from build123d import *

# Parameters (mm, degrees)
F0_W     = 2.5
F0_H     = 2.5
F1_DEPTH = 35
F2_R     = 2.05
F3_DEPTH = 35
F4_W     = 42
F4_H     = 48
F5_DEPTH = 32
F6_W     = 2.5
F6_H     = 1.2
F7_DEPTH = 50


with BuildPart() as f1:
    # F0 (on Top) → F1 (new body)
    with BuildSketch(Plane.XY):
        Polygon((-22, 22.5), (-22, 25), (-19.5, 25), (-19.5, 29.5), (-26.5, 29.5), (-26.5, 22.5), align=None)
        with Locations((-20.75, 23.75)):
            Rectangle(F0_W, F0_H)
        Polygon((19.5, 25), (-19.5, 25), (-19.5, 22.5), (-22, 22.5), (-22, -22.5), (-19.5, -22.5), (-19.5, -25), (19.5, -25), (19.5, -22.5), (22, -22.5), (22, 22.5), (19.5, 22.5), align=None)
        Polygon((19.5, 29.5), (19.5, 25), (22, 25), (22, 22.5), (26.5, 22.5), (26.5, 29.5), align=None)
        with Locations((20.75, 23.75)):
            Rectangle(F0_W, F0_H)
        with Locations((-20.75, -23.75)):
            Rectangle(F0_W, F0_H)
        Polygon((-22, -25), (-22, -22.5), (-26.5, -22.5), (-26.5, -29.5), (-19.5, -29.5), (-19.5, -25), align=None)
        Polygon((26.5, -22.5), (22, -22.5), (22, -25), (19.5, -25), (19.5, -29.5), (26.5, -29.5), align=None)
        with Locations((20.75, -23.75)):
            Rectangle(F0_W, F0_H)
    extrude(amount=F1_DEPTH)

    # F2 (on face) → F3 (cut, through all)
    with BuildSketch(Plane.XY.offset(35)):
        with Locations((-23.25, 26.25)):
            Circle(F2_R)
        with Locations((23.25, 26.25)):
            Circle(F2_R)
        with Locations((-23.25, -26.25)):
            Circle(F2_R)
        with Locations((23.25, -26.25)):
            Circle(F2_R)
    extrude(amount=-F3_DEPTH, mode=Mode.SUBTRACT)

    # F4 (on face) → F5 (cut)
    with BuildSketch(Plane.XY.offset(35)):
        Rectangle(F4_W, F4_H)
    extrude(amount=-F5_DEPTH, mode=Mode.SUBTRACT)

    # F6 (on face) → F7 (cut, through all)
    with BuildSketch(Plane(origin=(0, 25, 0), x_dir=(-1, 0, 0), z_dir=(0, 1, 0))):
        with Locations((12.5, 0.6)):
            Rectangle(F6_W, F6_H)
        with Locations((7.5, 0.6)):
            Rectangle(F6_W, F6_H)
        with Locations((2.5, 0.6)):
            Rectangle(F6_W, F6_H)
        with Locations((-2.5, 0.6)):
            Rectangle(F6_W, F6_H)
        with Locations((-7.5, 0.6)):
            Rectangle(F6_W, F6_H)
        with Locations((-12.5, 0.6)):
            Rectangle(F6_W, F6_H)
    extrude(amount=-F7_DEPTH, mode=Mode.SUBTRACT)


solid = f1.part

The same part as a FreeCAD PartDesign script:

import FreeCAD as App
import Part
import Sketcher

doc = App.newDocument("Part")
body = doc.addObject("PartDesign::Body", "Body")

# Sketch on XY plane
sketch1 = body.newObject("Sketcher::SketchObject", "Sketch")
sketch1.AttachmentSupport = (doc.getObject("XY_Plane"), [""])
sketch1.MapMode = "FlatFace"
sketch1.addGeometry(Part.LineSegment(App.Vector(-19.5, 29.5, 0), App.Vector(-26.5, 29.5, 0)), False)
sketch1.addGeometry(Part.LineSegment(App.Vector(-26.5, 29.5, 0), App.Vector(-26.5, 22.5, 0)), False)
sketch1.addGeometry(Part.LineSegment(App.Vector(-26.5, 22.5, 0), App.Vector(-22, 22.5, 0)), False)
sketch1.addGeometry(Part.LineSegment(App.Vector(-22, 22.5, 0), App.Vector(-22, -22.5, 0)), False)
sketch1.addGeometry(Part.LineSegment(App.Vector(-22, -22.5, 0), App.Vector(-26.5, -22.5, 0)), False)
sketch1.addGeometry(Part.LineSegment(App.Vector(-26.5, -22.5, 0), App.Vector(-26.5, -29.5, 0)), False)
sketch1.addGeometry(Part.LineSegment(App.Vector(-26.5, -29.5, 0), App.Vector(-19.5, -29.5, 0)), False)
sketch1.addGeometry(Part.LineSegment(App.Vector(-19.5, -29.5, 0), App.Vector(-19.5, -25, 0)), False)
sketch1.addGeometry(Part.LineSegment(App.Vector(-19.5, -25, 0), App.Vector(19.5, -25, 0)), False)
sketch1.addGeometry(Part.LineSegment(App.Vector(19.5, -25, 0), App.Vector(19.5, -29.5, 0)), False)
sketch1.addGeometry(Part.LineSegment(App.Vector(19.5, -29.5, 0), App.Vector(26.5, -29.5, 0)), False)
sketch1.addGeometry(Part.LineSegment(App.Vector(26.5, -29.5, 0), App.Vector(26.5, -22.5, 0)), False)
sketch1.addGeometry(Part.LineSegment(App.Vector(26.5, -22.5, 0), App.Vector(22, -22.5, 0)), False)
sketch1.addGeometry(Part.LineSegment(App.Vector(22, -22.5, 0), App.Vector(22, 22.5, 0)), False)
sketch1.addGeometry(Part.LineSegment(App.Vector(22, 22.5, 0), App.Vector(26.5, 22.5, 0)), False)
sketch1.addGeometry(Part.LineSegment(App.Vector(26.5, 22.5, 0), App.Vector(26.5, 29.5, 0)), False)
sketch1.addGeometry(Part.LineSegment(App.Vector(26.5, 29.5, 0), App.Vector(19.5, 29.5, 0)), False)
sketch1.addGeometry(Part.LineSegment(App.Vector(19.5, 29.5, 0), App.Vector(19.5, 25, 0)), False)
sketch1.addGeometry(Part.LineSegment(App.Vector(19.5, 25, 0), App.Vector(-19.5, 25, 0)), False)
sketch1.addGeometry(Part.LineSegment(App.Vector(-19.5, 25, 0), App.Vector(-19.5, 29.5, 0)), False)
sketch1.addConstraint(Sketcher.Constraint("Coincident", 0, 2, 1, 1))
sketch1.addConstraint(Sketcher.Constraint("Coincident", 1, 2, 2, 1))
sketch1.addConstraint(Sketcher.Constraint("Coincident", 2, 2, 3, 1))
sketch1.addConstraint(Sketcher.Constraint("Coincident", 3, 2, 4, 1))
sketch1.addConstraint(Sketcher.Constraint("Coincident", 4, 2, 5, 1))
sketch1.addConstraint(Sketcher.Constraint("Coincident", 5, 2, 6, 1))
sketch1.addConstraint(Sketcher.Constraint("Coincident", 6, 2, 7, 1))
sketch1.addConstraint(Sketcher.Constraint("Coincident", 7, 2, 8, 1))
sketch1.addConstraint(Sketcher.Constraint("Coincident", 8, 2, 9, 1))
sketch1.addConstraint(Sketcher.Constraint("Coincident", 9, 2, 10, 1))
sketch1.addConstraint(Sketcher.Constraint("Coincident", 10, 2, 11, 1))
sketch1.addConstraint(Sketcher.Constraint("Coincident", 11, 2, 12, 1))
sketch1.addConstraint(Sketcher.Constraint("Coincident", 12, 2, 13, 1))
sketch1.addConstraint(Sketcher.Constraint("Coincident", 13, 2, 14, 1))
sketch1.addConstraint(Sketcher.Constraint("Coincident", 14, 2, 15, 1))
sketch1.addConstraint(Sketcher.Constraint("Coincident", 15, 2, 16, 1))
sketch1.addConstraint(Sketcher.Constraint("Coincident", 16, 2, 17, 1))
sketch1.addConstraint(Sketcher.Constraint("Coincident", 17, 2, 18, 1))
sketch1.addConstraint(Sketcher.Constraint("Coincident", 18, 2, 19, 1))
sketch1.addConstraint(Sketcher.Constraint("Coincident", 19, 2, 0, 1))
sketch1.addConstraint(Sketcher.Constraint("Horizontal", 0))
sketch1.addConstraint(Sketcher.Constraint("Vertical", 1))
sketch1.addConstraint(Sketcher.Constraint("Horizontal", 2))
sketch1.addConstraint(Sketcher.Constraint("Vertical", 3))
sketch1.addConstraint(Sketcher.Constraint("Horizontal", 4))
sketch1.addConstraint(Sketcher.Constraint("Vertical", 5))
sketch1.addConstraint(Sketcher.Constraint("Horizontal", 6))
sketch1.addConstraint(Sketcher.Constraint("Vertical", 7))
sketch1.addConstraint(Sketcher.Constraint("Horizontal", 8))
sketch1.addConstraint(Sketcher.Constraint("Vertical", 9))
sketch1.addConstraint(Sketcher.Constraint("Horizontal", 10))
sketch1.addConstraint(Sketcher.Constraint("Vertical", 11))
sketch1.addConstraint(Sketcher.Constraint("Horizontal", 12))
sketch1.addConstraint(Sketcher.Constraint("Vertical", 13))
sketch1.addConstraint(Sketcher.Constraint("Horizontal", 14))
sketch1.addConstraint(Sketcher.Constraint("Vertical", 15))
sketch1.addConstraint(Sketcher.Constraint("Horizontal", 16))
sketch1.addConstraint(Sketcher.Constraint("Vertical", 17))
sketch1.addConstraint(Sketcher.Constraint("Horizontal", 18))
sketch1.addConstraint(Sketcher.Constraint("Vertical", 19))
sketch1.addConstraint(Sketcher.Constraint("Symmetric", 0, 2, 10, 2, -1, 1))
sketch1.addConstraint(Sketcher.Constraint("Symmetric", 2, 2, 12, 2, -1, 1))
sketch1.addConstraint(Sketcher.Constraint("Symmetric", 4, 2, 14, 2, -1, 1))
sketch1.addConstraint(Sketcher.Constraint("Symmetric", 6, 2, 16, 2, -1, 1))
sketch1.addConstraint(Sketcher.Constraint("Symmetric", 8, 2, 18, 2, -1, 1))
sketch1.addConstraint(Sketcher.Constraint("Symmetric", 6, 2, 9, 2, -2))
sketch1.addConstraint(Sketcher.Constraint("Symmetric", 4, 2, 11, 2, -2))
sketch1.addConstraint(Sketcher.Constraint("Equal", 16, 1))
sketch1.addConstraint(Sketcher.Constraint("Equal", 14, 7))
sketch1.addConstraint(Sketcher.Constraint("DistanceX", 0, 2, 0, 1, 7.0))
sketch1.addConstraint(Sketcher.Constraint("DistanceX", 8, 1, 8, 2, 39.0))
sketch1.addConstraint(Sketcher.Constraint("DistanceY", 3, 2, 3, 1, 45.0))
sketch1.addConstraint(Sketcher.Constraint("DistanceX", 2, 1, 2, 2, 4.5))
pad1 = body.newObject("PartDesign::Pad", "Pad")
pad1.Profile = sketch1
pad1.Length = 35

# Sketch on XY plane
sketch2 = body.newObject("Sketcher::SketchObject", "Sketch001")
sketch2.AttachmentSupport = (doc.getObject("XY_Plane"), [""])
sketch2.MapMode = "FlatFace"
sketch2.AttachmentOffset = App.Placement(App.Vector(0, 0, 35), App.Rotation())
sketch2.addGeometry(Part.Circle(App.Vector(-23.25, 26.25, 0), App.Vector(0, 0, 1), 2.05), False)
sketch2.addGeometry(Part.Circle(App.Vector(23.25, 26.25, 0), App.Vector(0, 0, 1), 2.05), False)
sketch2.addGeometry(Part.Circle(App.Vector(-23.25, -26.25, 0), App.Vector(0, 0, 1), 2.05), False)
sketch2.addGeometry(Part.Circle(App.Vector(23.25, -26.25, 0), App.Vector(0, 0, 1), 2.05), False)
sketch2.addConstraint(Sketcher.Constraint("Equal", 0, 1))
sketch2.addConstraint(Sketcher.Constraint("Equal", 1, 2))
sketch2.addConstraint(Sketcher.Constraint("Equal", 2, 3))
sketch2.addConstraint(Sketcher.Constraint("Symmetric", 1, 3, 2, 3, -1, 1))
sketch2.addConstraint(Sketcher.Constraint("Symmetric", 0, 3, 3, 3, -1, 1))
sketch2.addConstraint(Sketcher.Constraint("Symmetric", 0, 3, 1, 3, -2))
sketch2.addConstraint(Sketcher.Constraint("Diameter", 0, 4.1))
sketch2.addConstraint(Sketcher.Constraint("DistanceX", 0, 3, 1, 3, 46.5))
sketch2.addConstraint(Sketcher.Constraint("DistanceY", 2, 3, 0, 3, 52.5))
pocket1 = body.newObject("PartDesign::Pocket", "Pocket")
pocket1.Profile = sketch2
pocket1.Type = "ThroughAll"

# Sketch on XY plane
sketch3 = body.newObject("Sketcher::SketchObject", "Sketch002")
sketch3.AttachmentSupport = (doc.getObject("XY_Plane"), [""])
sketch3.MapMode = "FlatFace"
sketch3.AttachmentOffset = App.Placement(App.Vector(0, 0, 35), App.Rotation())
sketch3.addGeometry(Part.LineSegment(App.Vector(-21, 24, 0), App.Vector(-21, -24, 0)), False)
sketch3.addGeometry(Part.LineSegment(App.Vector(-21, -24, 0), App.Vector(21, -24, 0)), False)
sketch3.addGeometry(Part.LineSegment(App.Vector(21, -24, 0), App.Vector(21, 24, 0)), False)
sketch3.addGeometry(Part.LineSegment(App.Vector(21, 24, 0), App.Vector(-21, 24, 0)), False)
sketch3.addConstraint(Sketcher.Constraint("Coincident", 0, 2, 1, 1))
sketch3.addConstraint(Sketcher.Constraint("Coincident", 1, 2, 2, 1))
sketch3.addConstraint(Sketcher.Constraint("Coincident", 2, 2, 3, 1))
sketch3.addConstraint(Sketcher.Constraint("Coincident", 3, 2, 0, 1))
sketch3.addConstraint(Sketcher.Constraint("Vertical", 0))
sketch3.addConstraint(Sketcher.Constraint("Horizontal", 1))
sketch3.addConstraint(Sketcher.Constraint("Vertical", 2))
sketch3.addConstraint(Sketcher.Constraint("Horizontal", 3))
sketch3.addConstraint(Sketcher.Constraint("Symmetric", 0, 2, 2, 2, -1, 1))
sketch3.addConstraint(Sketcher.Constraint("DistanceX", 1, 1, 1, 2, 42.0))
sketch3.addConstraint(Sketcher.Constraint("DistanceY", 0, 2, 0, 1, 48.0))
pocket2 = body.newObject("PartDesign::Pocket", "Pocket001")
pocket2.Profile = sketch3
pocket2.Length = 32

# Sketch on XZ plane
sketch4 = body.newObject("Sketcher::SketchObject", "Sketch003")
sketch4.AttachmentSupport = (doc.getObject("XZ_Plane"), [""])
sketch4.MapMode = "FlatFace"
sketch4.AttachmentOffset = App.Placement(App.Vector(0, 0, -25), App.Rotation())
sketch4.addGeometry(Part.LineSegment(App.Vector(-11.25, 1.2, 0), App.Vector(-11.25, 0, 0)), False)
sketch4.addGeometry(Part.LineSegment(App.Vector(-11.25, 0, 0), App.Vector(-13.75, 0, 0)), False)
sketch4.addGeometry(Part.LineSegment(App.Vector(-13.75, 0, 0), App.Vector(-13.75, 1.2, 0)), False)
sketch4.addGeometry(Part.LineSegment(App.Vector(-13.75, 1.2, 0), App.Vector(-11.25, 1.2, 0)), False)
sketch4.addGeometry(Part.LineSegment(App.Vector(-6.25, 1.2, 0), App.Vector(-6.25, 0, 0)), False)
sketch4.addGeometry(Part.LineSegment(App.Vector(-6.25, 0, 0), App.Vector(-8.75, 0, 0)), False)
sketch4.addGeometry(Part.LineSegment(App.Vector(-8.75, 0, 0), App.Vector(-8.75, 1.2, 0)), False)
sketch4.addGeometry(Part.LineSegment(App.Vector(-8.75, 1.2, 0), App.Vector(-6.25, 1.2, 0)), False)
sketch4.addGeometry(Part.LineSegment(App.Vector(-1.25, 1.2, 0), App.Vector(-1.25, 0, 0)), False)
sketch4.addGeometry(Part.LineSegment(App.Vector(-1.25, 0, 0), App.Vector(-3.75, 0, 0)), False)
sketch4.addGeometry(Part.LineSegment(App.Vector(-3.75, 0, 0), App.Vector(-3.75, 1.2, 0)), False)
sketch4.addGeometry(Part.LineSegment(App.Vector(-3.75, 1.2, 0), App.Vector(-1.25, 1.2, 0)), False)
sketch4.addGeometry(Part.LineSegment(App.Vector(3.75, 1.2, 0), App.Vector(3.75, 0, 0)), False)
sketch4.addGeometry(Part.LineSegment(App.Vector(3.75, 0, 0), App.Vector(1.25, 0, 0)), False)
sketch4.addGeometry(Part.LineSegment(App.Vector(1.25, 0, 0), App.Vector(1.25, 1.2, 0)), False)
sketch4.addGeometry(Part.LineSegment(App.Vector(1.25, 1.2, 0), App.Vector(3.75, 1.2, 0)), False)
sketch4.addGeometry(Part.LineSegment(App.Vector(8.75, 1.2, 0), App.Vector(8.75, 0, 0)), False)
sketch4.addGeometry(Part.LineSegment(App.Vector(8.75, 0, 0), App.Vector(6.25, 0, 0)), False)
sketch4.addGeometry(Part.LineSegment(App.Vector(6.25, 0, 0), App.Vector(6.25, 1.2, 0)), False)
sketch4.addGeometry(Part.LineSegment(App.Vector(6.25, 1.2, 0), App.Vector(8.75, 1.2, 0)), False)
sketch4.addGeometry(Part.LineSegment(App.Vector(13.75, 1.2, 0), App.Vector(13.75, 0, 0)), False)
sketch4.addGeometry(Part.LineSegment(App.Vector(13.75, 0, 0), App.Vector(11.25, 0, 0)), False)
sketch4.addGeometry(Part.LineSegment(App.Vector(11.25, 0, 0), App.Vector(11.25, 1.2, 0)), False)
sketch4.addGeometry(Part.LineSegment(App.Vector(11.25, 1.2, 0), App.Vector(13.75, 1.2, 0)), False)
sketch4.addConstraint(Sketcher.Constraint("Coincident", 0, 2, 1, 1))
sketch4.addConstraint(Sketcher.Constraint("Coincident", 1, 2, 2, 1))
sketch4.addConstraint(Sketcher.Constraint("Coincident", 2, 2, 3, 1))
sketch4.addConstraint(Sketcher.Constraint("Coincident", 3, 2, 0, 1))
sketch4.addConstraint(Sketcher.Constraint("Coincident", 4, 2, 5, 1))
sketch4.addConstraint(Sketcher.Constraint("Coincident", 5, 2, 6, 1))
sketch4.addConstraint(Sketcher.Constraint("Coincident", 6, 2, 7, 1))
sketch4.addConstraint(Sketcher.Constraint("Coincident", 7, 2, 4, 1))
sketch4.addConstraint(Sketcher.Constraint("Coincident", 8, 2, 9, 1))
sketch4.addConstraint(Sketcher.Constraint("Coincident", 9, 2, 10, 1))
sketch4.addConstraint(Sketcher.Constraint("Coincident", 10, 2, 11, 1))
sketch4.addConstraint(Sketcher.Constraint("Coincident", 11, 2, 8, 1))
sketch4.addConstraint(Sketcher.Constraint("Coincident", 12, 2, 13, 1))
sketch4.addConstraint(Sketcher.Constraint("Coincident", 13, 2, 14, 1))
sketch4.addConstraint(Sketcher.Constraint("Coincident", 14, 2, 15, 1))
sketch4.addConstraint(Sketcher.Constraint("Coincident", 15, 2, 12, 1))
sketch4.addConstraint(Sketcher.Constraint("Coincident", 16, 2, 17, 1))
sketch4.addConstraint(Sketcher.Constraint("Coincident", 17, 2, 18, 1))
sketch4.addConstraint(Sketcher.Constraint("Coincident", 18, 2, 19, 1))
sketch4.addConstraint(Sketcher.Constraint("Coincident", 19, 2, 16, 1))
sketch4.addConstraint(Sketcher.Constraint("Coincident", 20, 2, 21, 1))
sketch4.addConstraint(Sketcher.Constraint("Coincident", 21, 2, 22, 1))
sketch4.addConstraint(Sketcher.Constraint("Coincident", 22, 2, 23, 1))
sketch4.addConstraint(Sketcher.Constraint("Coincident", 23, 2, 20, 1))
sketch4.addConstraint(Sketcher.Constraint("Vertical", 0))
sketch4.addConstraint(Sketcher.Constraint("Horizontal", 1))
sketch4.addConstraint(Sketcher.Constraint("Vertical", 2))
sketch4.addConstraint(Sketcher.Constraint("Horizontal", 3))
sketch4.addConstraint(Sketcher.Constraint("Vertical", 4))
sketch4.addConstraint(Sketcher.Constraint("Horizontal", 5))
sketch4.addConstraint(Sketcher.Constraint("Vertical", 6))
sketch4.addConstraint(Sketcher.Constraint("Horizontal", 7))
sketch4.addConstraint(Sketcher.Constraint("Vertical", 8))
sketch4.addConstraint(Sketcher.Constraint("Horizontal", 9))
sketch4.addConstraint(Sketcher.Constraint("Vertical", 10))
sketch4.addConstraint(Sketcher.Constraint("Horizontal", 11))
sketch4.addConstraint(Sketcher.Constraint("Vertical", 12))
sketch4.addConstraint(Sketcher.Constraint("Horizontal", 13))
sketch4.addConstraint(Sketcher.Constraint("Vertical", 14))
sketch4.addConstraint(Sketcher.Constraint("Horizontal", 15))
sketch4.addConstraint(Sketcher.Constraint("Vertical", 16))
sketch4.addConstraint(Sketcher.Constraint("Horizontal", 17))
sketch4.addConstraint(Sketcher.Constraint("Vertical", 18))
sketch4.addConstraint(Sketcher.Constraint("Horizontal", 19))
sketch4.addConstraint(Sketcher.Constraint("Vertical", 20))
sketch4.addConstraint(Sketcher.Constraint("Horizontal", 21))
sketch4.addConstraint(Sketcher.Constraint("Vertical", 22))
sketch4.addConstraint(Sketcher.Constraint("Horizontal", 23))
sketch4.addConstraint(Sketcher.Constraint("Symmetric", 9, 2, 12, 2, -1, 1))
sketch4.addConstraint(Sketcher.Constraint("Symmetric", 5, 2, 16, 2, -1, 1))
sketch4.addConstraint(Sketcher.Constraint("Symmetric", 1, 2, 20, 2, -1, 1))
sketch4.addConstraint(Sketcher.Constraint("Symmetric", 8, 2, 13, 2, -2))
sketch4.addConstraint(Sketcher.Constraint("Symmetric", 4, 2, 17, 2, -2))
sketch4.addConstraint(Sketcher.Constraint("Symmetric", 0, 2, 21, 2, -2))
sketch4.addConstraint(Sketcher.Constraint("Horizontal", 3, 2, 6, 2))
sketch4.addConstraint(Sketcher.Constraint("Horizontal", 7, 2, 10, 2))
sketch4.addConstraint(Sketcher.Constraint("Horizontal", 11, 2, 14, 2))
sketch4.addConstraint(Sketcher.Constraint("Horizontal", 15, 2, 18, 2))
sketch4.addConstraint(Sketcher.Constraint("Horizontal", 19, 2, 22, 2))
sketch4.addConstraint(Sketcher.Constraint("Equal", 3, 5))
sketch4.addConstraint(Sketcher.Constraint("Equal", 7, 9))
sketch4.addConstraint(Sketcher.Constraint("DistanceX", 1, 2, 1, 1, 2.5))
sketch4.addConstraint(Sketcher.Constraint("DistanceY", 0, 2, 0, 1, 1.2))
sketch4.addConstraint(Sketcher.Constraint("DistanceX", 0, 2, 4, 2, 5.0))
sketch4.addConstraint(Sketcher.Constraint("DistanceX", 4, 2, 8, 2, 5.0))
sketch4.addConstraint(Sketcher.Constraint("DistanceX", 8, 2, 12, 2, 5.0))
pocket3 = body.newObject("PartDesign::Pocket", "Pocket002")
pocket3.Profile = sketch4
pocket3.Type = "ThroughAll"
pocket3.Reversed = True

doc.recompute()
